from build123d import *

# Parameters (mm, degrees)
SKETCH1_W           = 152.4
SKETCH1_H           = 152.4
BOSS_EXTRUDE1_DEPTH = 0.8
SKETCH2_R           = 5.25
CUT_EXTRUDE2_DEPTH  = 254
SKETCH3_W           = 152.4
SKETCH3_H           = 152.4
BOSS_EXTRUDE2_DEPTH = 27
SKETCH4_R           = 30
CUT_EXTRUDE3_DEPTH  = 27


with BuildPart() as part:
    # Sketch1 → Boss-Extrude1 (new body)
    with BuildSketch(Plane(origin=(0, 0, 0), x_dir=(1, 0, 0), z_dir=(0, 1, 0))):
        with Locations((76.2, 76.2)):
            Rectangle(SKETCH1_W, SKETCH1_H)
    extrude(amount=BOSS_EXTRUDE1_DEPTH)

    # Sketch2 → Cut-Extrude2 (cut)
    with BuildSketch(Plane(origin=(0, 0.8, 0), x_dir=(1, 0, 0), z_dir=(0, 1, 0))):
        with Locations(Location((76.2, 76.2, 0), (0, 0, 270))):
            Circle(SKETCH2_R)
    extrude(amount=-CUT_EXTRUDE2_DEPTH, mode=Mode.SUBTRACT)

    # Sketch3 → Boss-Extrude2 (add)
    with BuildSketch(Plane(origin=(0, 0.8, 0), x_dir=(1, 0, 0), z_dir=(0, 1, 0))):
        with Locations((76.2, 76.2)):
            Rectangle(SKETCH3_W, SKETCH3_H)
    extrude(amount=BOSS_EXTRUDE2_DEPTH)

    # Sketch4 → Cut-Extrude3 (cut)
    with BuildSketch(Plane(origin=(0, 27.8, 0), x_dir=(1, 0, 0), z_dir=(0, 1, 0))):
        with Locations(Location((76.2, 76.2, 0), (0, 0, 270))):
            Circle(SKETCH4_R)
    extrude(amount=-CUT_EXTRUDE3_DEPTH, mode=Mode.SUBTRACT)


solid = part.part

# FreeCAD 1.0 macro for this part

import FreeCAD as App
import Part
import Sketcher
from FreeCAD import Vector
Q = App.Units.Quantity

doc = App.newDocument("Part")
body = doc.addObject("PartDesign::Body", "Body")

sketch1 = body.newObject("Sketcher::SketchObject", "Sketch")
sketch1.AttachmentSupport = (doc.getObject("XZ_Plane"), [""])
sketch1.MapMode = "FlatFace"
sketch1.addGeometry(Part.LineSegment(Vector(0, -152, 0), Vector(0, 0, 0)), False)
sketch1.addGeometry(Part.LineSegment(Vector(0, 0, 0), Vector(152, 0, 0)), False)
sketch1.addGeometry(Part.LineSegment(Vector(152, 0, 0), Vector(152, -152, 0)), False)
sketch1.addGeometry(Part.LineSegment(Vector(152, -152, 0), Vector(0, -152, 0)), False)
sketch1.addConstraint(Sketcher.Constraint("Coincident", 0, 2, 1, 1))
sketch1.addConstraint(Sketcher.Constraint("Coincident", 1, 2, 2, 1))
sketch1.addConstraint(Sketcher.Constraint("Coincident", 2, 2, 3, 1))
sketch1.addConstraint(Sketcher.Constraint("Coincident", 3, 2, 0, 1))
sketch1.addConstraint(Sketcher.Constraint("Vertical", 0))
sketch1.addConstraint(Sketcher.Constraint("Horizontal", 1))
sketch1.addConstraint(Sketcher.Constraint("Vertical", 2))
sketch1.addConstraint(Sketcher.Constraint("Horizontal", 3))
sketch1.addConstraint(Sketcher.Constraint("Coincident", 0, 2, -1, 1))
sketch1.addConstraint(Sketcher.Constraint("Equal", 3, 0))
sketch1.addConstraint(Sketcher.Constraint("DistanceX", 1, 1, 1, 2, Q("152.4 mm")))
pad1 = body.newObject("PartDesign::Pad", "Pad")
pad1.Profile = sketch1
pad1.Length = 0.8
pad1.Reversed = True

sketch2 = body.newObject("Sketcher::SketchObject", "Sketch001")
sketch2.AttachmentSupport = (doc.getObject("XZ_Plane"), [""])
sketch2.MapMode = "FlatFace"
sketch2.AttachmentOffset = App.Placement(Vector(0, 0, -0.8), App.Rotation())
sketch2.addGeometry(Part.Circle(Vector(76, -76, 0), Vector(0, 0, 1), 5), False)
sketch2.addConstraint(Sketcher.Constraint("Diameter", 0, Q("10.5 mm")))
sketch2.addConstraint(Sketcher.Constraint("DistanceX", -1, 1, 0, 3, Q("76.2 mm")))
sketch2.addConstraint(Sketcher.Constraint("DistanceY", 0, 3, -1, 1, Q("76.2 mm")))
pocket1 = body.newObject("PartDesign::Pocket", "Pocket")
pocket1.Profile = sketch2
pocket1.Length = 254
pocket1.Reversed = True

sketch3 = body.newObject("Sketcher::SketchObject", "Sketch002")
sketch3.AttachmentSupport = (doc.getObject("XZ_Plane"), [""])
sketch3.MapMode = "FlatFace"
sketch3.AttachmentOffset = App.Placement(Vector(0, 0, -0.8), App.Rotation())
sketch3.addGeometry(Part.LineSegment(Vector(0, -152, 0), Vector(0, 0, 0)), False)
sketch3.addGeometry(Part.LineSegment(Vector(0, 0, 0), Vector(152, 0, 0)), False)
sketch3.addGeometry(Part.LineSegment(Vector(152, 0, 0), Vector(152, -152, 0)), False)
sketch3.addGeometry(Part.LineSegment(Vector(152, -152, 0), Vector(0, -152, 0)), False)
sketch3.addConstraint(Sketcher.Constraint("Coincident", 0, 2, 1, 1))
sketch3.addConstraint(Sketcher.Constraint("Coincident", 1, 2, 2, 1))
sketch3.addConstraint(Sketcher.Constraint("Coincident", 2, 2, 3, 1))
sketch3.addConstraint(Sketcher.Constraint("Coincident", 3, 2, 0, 1))
sketch3.addConstraint(Sketcher.Constraint("Vertical", 0))
sketch3.addConstraint(Sketcher.Constraint("Horizontal", 1))
sketch3.addConstraint(Sketcher.Constraint("Vertical", 2))
sketch3.addConstraint(Sketcher.Constraint("Horizontal", 3))
sketch3.addConstraint(Sketcher.Constraint("Coincident", 0, 2, -1, 1))
sketch3.addConstraint(Sketcher.Constraint("Equal", 3, 0))
sketch3.addConstraint(Sketcher.Constraint("DistanceX", 1, 1, 1, 2, Q("152.4 mm")))
pad2 = body.newObject("PartDesign::Pad", "Pad001")
pad2.Profile = sketch3
pad2.Length = 27
pad2.Reversed = True

sketch4 = body.newObject("Sketcher::SketchObject", "Sketch003")
sketch4.AttachmentSupport = (doc.getObject("XZ_Plane"), [""])
sketch4.MapMode = "FlatFace"
sketch4.AttachmentOffset = App.Placement(Vector(0, 0, -27.8), App.Rotation())
sketch4.addGeometry(Part.Circle(Vector(76, -76, 0), Vector(0, 0, 1), 30), False)
sketch4.addConstraint(Sketcher.Constraint("Diameter", 0, Q("60 mm")))
sketch4.addConstraint(Sketcher.Constraint("DistanceX", -1, 1, 0, 3, Q("76.2 mm")))
sketch4.addConstraint(Sketcher.Constraint("DistanceY", 0, 3, -1, 1, Q("76.2 mm")))
pocket2 = body.newObject("PartDesign::Pocket", "Pocket001")
pocket2.Profile = sketch4
pocket2.Length = 27
pocket2.Reversed = True

doc.recompute()
